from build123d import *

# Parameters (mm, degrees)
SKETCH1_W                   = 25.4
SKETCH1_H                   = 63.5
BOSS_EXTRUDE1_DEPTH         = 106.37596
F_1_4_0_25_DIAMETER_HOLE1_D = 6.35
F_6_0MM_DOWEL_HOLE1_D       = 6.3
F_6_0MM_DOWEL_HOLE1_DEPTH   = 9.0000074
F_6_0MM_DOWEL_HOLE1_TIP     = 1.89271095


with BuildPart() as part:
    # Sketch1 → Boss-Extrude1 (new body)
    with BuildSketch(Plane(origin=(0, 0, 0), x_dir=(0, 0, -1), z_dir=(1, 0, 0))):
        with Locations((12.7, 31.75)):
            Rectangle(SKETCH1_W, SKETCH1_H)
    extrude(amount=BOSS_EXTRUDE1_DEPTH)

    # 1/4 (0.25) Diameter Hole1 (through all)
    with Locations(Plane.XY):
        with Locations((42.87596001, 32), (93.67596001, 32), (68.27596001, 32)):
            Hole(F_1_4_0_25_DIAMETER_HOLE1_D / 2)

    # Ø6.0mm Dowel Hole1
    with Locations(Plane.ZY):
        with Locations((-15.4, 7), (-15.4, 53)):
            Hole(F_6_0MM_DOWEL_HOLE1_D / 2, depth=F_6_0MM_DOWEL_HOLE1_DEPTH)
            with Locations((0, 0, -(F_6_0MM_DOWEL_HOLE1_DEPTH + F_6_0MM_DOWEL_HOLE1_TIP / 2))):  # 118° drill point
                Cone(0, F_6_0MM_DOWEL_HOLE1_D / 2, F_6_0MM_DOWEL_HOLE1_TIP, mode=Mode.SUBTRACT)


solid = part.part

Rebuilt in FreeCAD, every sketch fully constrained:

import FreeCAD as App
import Part
import Sketcher

V = App.Vector
Q = App.Units.Quantity


def add_polygon(sketch, points):
    """Adds a closed chain of lines whose ends are joined by coincident constraints."""
    first, n = sketch.GeometryCount, len(points)
    for a, b in zip(points, points[1:] + points[:1]):
        sketch.addGeometry(Part.LineSegment(App.Vector(*a, 0), App.Vector(*b, 0)), False)
    for i in range(n):
        sketch.addConstraint(Sketcher.Constraint("Coincident", first + i, 2, first + (i + 1) % n, 1))

doc = App.newDocument("Part")
body = doc.addObject("PartDesign::Body", "Body")

sketch1 = doc.addObject("Sketcher::SketchObject", "Sketch")
body.addObject(sketch1)
sketch1.AttachmentSupport = (doc.YZ_Plane, [""])
sketch1.MapMode = "FlatFace"
add_polygon(sketch1, [(64, 0), (0, 0), (0, -25), (64, -25)])
sketch1.addConstraint([
    Sketcher.Constraint("Horizontal", 0),
    Sketcher.Constraint("Vertical", 1),
    Sketcher.Constraint("Horizontal", 2),
    Sketcher.Constraint("Vertical", 3),
    Sketcher.Constraint("Coincident", 0, 2, -1, 1),
    Sketcher.Constraint("DistanceY", 1, 2, 1, 1, Q("1 in")),
    Sketcher.Constraint("DistanceX", 0, 2, 0, 1, Q("2.5 in")),
])
pad1 = doc.addObject("PartDesign::Pad", "Pad")
body.addObject(pad1)
pad1.Profile = sketch1
pad1.Length = 106.37596

sketch2 = doc.addObject("Sketcher::SketchObject", "Sketch001")
body.addObject(sketch2)
sketch2.AttachmentSupport = (doc.XY_Plane, [""])
sketch2.MapMode = "FlatFace"
sketch2.addGeometry([
    Part.Circle(V(42.9, 32, 0), V(0, 0, 1), 3.2),
    Part.Circle(V(93.7, 32, 0), V(0, 0, 1), 3.2),
    Part.Circle(V(68.3, 32, 0), V(0, 0, 1), 3.2),
], False)
sketch2.addConstraint([
    Sketcher.Constraint("Equal", 0, 1),
    Sketcher.Constraint("Equal", 1, 2),
    Sketcher.Constraint("Horizontal", 0, 3, 1, 3),
    Sketcher.Constraint("Horizontal", 1, 3, 2, 3),
    Sketcher.Constraint("Diameter", 0, Q("0.25 in")),
    Sketcher.Constraint("DistanceX", 0, 3, 1, 3, Q("2 in")),
    Sketcher.Constraint("DistanceX", 2, 3, 1, 3, Q("1 in")),
    Sketcher.Constraint("DistanceY", -1, 1, 0, 3, Q("32 mm")),
    Sketcher.Constraint("DistanceX", -1, 1, 0, 3, Q("42.87596 mm")),
])
doc.recompute()
hole = doc.addObject("PartDesign::Hole", "Hole")
body.addObject(hole)
hole.Profile = sketch2
hole.ThreadType = "None"
hole.Diameter = Q("0.25 in")
hole.DepthType = "ThroughAll"

sketch3 = doc.addObject("Sketcher::SketchObject", "Sketch002")
body.addObject(sketch3)
sketch3.AttachmentSupport = (doc.YZ_Plane, [""])
sketch3.MapMode = "FlatFace"
sketch3.addGeometry([
    Part.Circle(V(7, -15.4, 0), V(0, 0, 1), 3.1),
    Part.Circle(V(53, -15.4, 0), V(0, 0, 1), 3.1),
], False)
sketch3.addConstraint([
    Sketcher.Constraint("Equal", 0, 1),
    Sketcher.Constraint("Horizontal", 0, 3, 1, 3),
    Sketcher.Constraint("Diameter", 0, Q("6.3 mm")),
    Sketcher.Constraint("DistanceX", -1, 1, 0, 3, Q("7 mm")),
    Sketcher.Constraint("DistanceY", 0, 3, -1, 1, Q("15.4 mm")),
    Sketcher.Constraint("DistanceX", -1, 1, 1, 3, Q("53 mm")),
])
doc.recompute()
hole2 = doc.addObject("PartDesign::Hole", "Hole001")
body.addObject(hole2)
hole2.Profile = sketch3
hole2.ThreadType = "None"
hole2.Diameter = 6.3
hole2.DepthType = "Dimension"
hole2.Depth = 9.000007
hole2.DrillPoint = "Angled"
hole2.DrillPointAngle = 118
hole2.Reversed = True

doc.recompute()
